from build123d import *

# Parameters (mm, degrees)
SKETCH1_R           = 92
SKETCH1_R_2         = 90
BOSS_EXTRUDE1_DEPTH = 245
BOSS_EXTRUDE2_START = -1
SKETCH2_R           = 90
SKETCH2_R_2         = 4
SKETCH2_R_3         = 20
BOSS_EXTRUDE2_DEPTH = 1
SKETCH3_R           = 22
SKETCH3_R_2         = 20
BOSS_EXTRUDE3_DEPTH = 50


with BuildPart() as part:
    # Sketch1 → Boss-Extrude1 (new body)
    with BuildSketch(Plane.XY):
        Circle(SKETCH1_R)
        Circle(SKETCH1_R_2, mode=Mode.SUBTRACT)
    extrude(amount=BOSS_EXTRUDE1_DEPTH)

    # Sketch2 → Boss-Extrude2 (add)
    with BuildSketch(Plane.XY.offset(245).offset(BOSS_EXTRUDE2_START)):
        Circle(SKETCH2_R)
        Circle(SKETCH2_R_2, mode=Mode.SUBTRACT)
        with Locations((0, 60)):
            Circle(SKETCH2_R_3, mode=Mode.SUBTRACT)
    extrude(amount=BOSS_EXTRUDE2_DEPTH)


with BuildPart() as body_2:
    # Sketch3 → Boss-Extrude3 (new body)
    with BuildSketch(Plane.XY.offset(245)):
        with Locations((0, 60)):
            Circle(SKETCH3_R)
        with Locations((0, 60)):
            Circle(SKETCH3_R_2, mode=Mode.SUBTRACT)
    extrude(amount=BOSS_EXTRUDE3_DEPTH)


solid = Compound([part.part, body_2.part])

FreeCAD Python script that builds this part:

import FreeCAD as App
import Part
import Sketcher

doc = App.newDocument("Part")
body = doc.addObject("PartDesign::Body", "Body")

sketch1 = body.newObject("Sketcher::SketchObject", "Sketch")
sketch1.AttachmentSupport = (doc.getObject("XY_Plane"), [""])
sketch1.MapMode = "FlatFace"
sketch1.addGeometry([
    Part.Circle(App.Vector(0, 0, 0), App.Vector(0, 0, 1), 92),
    Part.Circle(App.Vector(0, 0, 0), App.Vector(0, 0, 1), 90),
], False)
sketch1.addConstraint([
    Sketcher.Constraint("Coincident", 0, 3, -1, 1),
    Sketcher.Constraint("Coincident", 1, 3, -1, 1),
    Sketcher.Constraint("Diameter", 0, 184.0),
    Sketcher.Constraint("Diameter", 1, 180.0),
])
pad1 = body.newObject("PartDesign::Pad", "Pad")
pad1.Profile = sketch1
pad1.Length = 245

sketch2 = body.newObject("Sketcher::SketchObject", "Sketch001")
sketch2.AttachmentSupport = (doc.getObject("XY_Plane"), [""])
sketch2.MapMode = "FlatFace"
sketch2.AttachmentOffset = App.Placement(App.Vector(0, 0, 244), App.Rotation())
sketch2.addGeometry([
    Part.Circle(App.Vector(0, 0, 0), App.Vector(0, 0, 1), 90),
    Part.Circle(App.Vector(0, 0, 0), App.Vector(0, 0, 1), 4),
    Part.Circle(App.Vector(0, 60, 0), App.Vector(0, 0, 1), 20),
], False)
sketch2.addConstraint([
    Sketcher.Constraint("Coincident", 0, 3, -1, 1),
    Sketcher.Constraint("Coincident", 1, 3, -1, 1),
    Sketcher.Constraint("PointOnObject", 2, 3, -2),
    Sketcher.Constraint("Diameter", 0, 180.0),
    Sketcher.Constraint("Diameter", 1, 8.0),
    Sketcher.Constraint("Diameter", 2, 40.0),
    Sketcher.Constraint("DistanceY", -1, 1, 2, 3, 60.0),
])
pad2 = body.newObject("PartDesign::Pad", "Pad001")
pad2.Profile = sketch2
pad2.Length = 1
body2 = doc.addObject("PartDesign::Body", "Body001")

sketch3 = body2.newObject("Sketcher::SketchObject", "Sketch002")
sketch3.AttachmentSupport = (doc.getObject("XY_Plane001"), [""])
sketch3.MapMode = "FlatFace"
sketch3.AttachmentOffset = App.Placement(App.Vector(0, 0, 245), App.Rotation())
sketch3.addGeometry([
    Part.Circle(App.Vector(0, 60, 0), App.Vector(0, 0, 1), 22),
    Part.Circle(App.Vector(0, 60, 0), App.Vector(0, 0, 1), 20),
], False)
sketch3.addConstraint([
    Sketcher.Constraint("Coincident", 1, 3, 0, 3),
    Sketcher.Constraint("PointOnObject", 0, 3, -2),
    Sketcher.Constraint("Diameter", 0, 44.0),
    Sketcher.Constraint("Diameter", 1, 40.0),
    Sketcher.Constraint("DistanceY", -1, 1, 0, 3, 60.0),
])
pad3 = body2.newObject("PartDesign::Pad", "Pad002")
pad3.Profile = sketch3
pad3.Length = 50

doc.recompute()
